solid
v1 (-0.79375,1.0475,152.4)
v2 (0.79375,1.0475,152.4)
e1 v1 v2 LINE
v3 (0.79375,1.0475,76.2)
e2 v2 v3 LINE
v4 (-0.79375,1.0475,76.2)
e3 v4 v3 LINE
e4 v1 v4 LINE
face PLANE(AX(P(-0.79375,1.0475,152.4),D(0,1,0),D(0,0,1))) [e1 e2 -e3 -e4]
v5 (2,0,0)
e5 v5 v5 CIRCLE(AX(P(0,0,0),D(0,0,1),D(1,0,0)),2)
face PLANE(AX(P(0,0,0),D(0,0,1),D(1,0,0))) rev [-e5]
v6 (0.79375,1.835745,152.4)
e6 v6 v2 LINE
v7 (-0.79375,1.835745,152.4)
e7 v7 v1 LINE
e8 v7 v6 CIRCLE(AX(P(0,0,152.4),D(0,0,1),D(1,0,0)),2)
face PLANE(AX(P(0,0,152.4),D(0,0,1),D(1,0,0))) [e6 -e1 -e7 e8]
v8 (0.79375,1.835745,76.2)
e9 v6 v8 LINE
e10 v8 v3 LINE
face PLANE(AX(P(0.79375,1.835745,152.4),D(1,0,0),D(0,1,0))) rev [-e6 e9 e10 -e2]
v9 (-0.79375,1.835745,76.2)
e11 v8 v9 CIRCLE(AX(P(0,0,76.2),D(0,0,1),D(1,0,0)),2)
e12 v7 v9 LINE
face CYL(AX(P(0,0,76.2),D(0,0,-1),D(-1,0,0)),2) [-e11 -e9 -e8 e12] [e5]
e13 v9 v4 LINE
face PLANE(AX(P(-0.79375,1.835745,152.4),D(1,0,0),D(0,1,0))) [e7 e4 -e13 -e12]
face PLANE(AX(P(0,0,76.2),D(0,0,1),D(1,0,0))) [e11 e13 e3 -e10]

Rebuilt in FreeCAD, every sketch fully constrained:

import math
import FreeCAD as App
import Part
import Sketcher

V = App.Vector
Q = App.Units.Quantity

doc = App.newDocument("Part")
params = doc.addObject("Spreadsheet::Sheet", "Params")
for row, (alias, value) in enumerate([
    ("pad1_length", "3 in"),
    ("sketch2_width", "0.0625 in"),
    ("pad2_length", "3 in"),
], start=1):
    params.set(f"A{row}", alias)
    params.set(f"B{row}", "=" + value)
    params.setAlias(f"B{row}", alias)

body = doc.addObject("PartDesign::Body", "Body")

sketch1 = doc.addObject("Sketcher::SketchObject", "Sketch")
body.addObject(sketch1)
sketch1.AttachmentSupport = (doc.XY_Plane, [""])
sketch1.MapMode = "FlatFace"
sketch1.addGeometry(Part.Circle(V(0, 0, 0), V(0, 0, 1), 2), False)
sketch1.addConstraint(Sketcher.Constraint("Coincident", 0, 3, -1, 1))
sketch1.addConstraint(Sketcher.Constraint("Diameter", 0, 4.0))
pad1 = doc.addObject("PartDesign::Pad", "Pad")
body.addObject(pad1)
pad1.Profile = sketch1
pad1.setExpression("Length", "Params.pad1_length")

sketch2 = doc.addObject("Sketcher::SketchObject", "Sketch001")
body.addObject(sketch2)
sketch2.AttachmentSupport = (doc.XY_Plane, [""])
sketch2.MapMode = "FlatFace"
sketch2.AttachmentOffset = App.Placement(V(0, 0, 3 * 25.4), App.Rotation())
sketch2.addGeometry(Part.LineSegment(V(-0.79375, 1.0475, 0), V(-0.79375, 1.835745, 0)), False)
sketch2.addGeometry(Part.ArcOfCircle(Part.Circle(V(0, 0, 0), V(0, 0, 1), 2), math.radians(113.382964), math.radians(426.617036)), False)
sketch2.addGeometry(Part.LineSegment(V(0.79375, 1.835745, 0), V(0.79375, 1.0475, 0)), False)
sketch2.addGeometry(Part.LineSegment(V(0.79375, 1.0475, 0), V(-0.79375, 1.0475, 0)), False)
sketch2.addConstraint(Sketcher.Constraint("Coincident", 0, 2, 1, 1))
sketch2.addConstraint(Sketcher.Constraint("Coincident", 1, 2, 2, 1))
sketch2.addConstraint(Sketcher.Constraint("Coincident", 2, 2, 3, 1))
sketch2.addConstraint(Sketcher.Constraint("Coincident", 3, 2, 0, 1))
sketch2.addConstraint(Sketcher.Constraint("Vertical", 0))
sketch2.addConstraint(Sketcher.Constraint("Vertical", 2))
sketch2.addConstraint(Sketcher.Constraint("Horizontal", 3))
sketch2.addConstraint(Sketcher.Constraint("Coincident", 1, 3, -1, 1))
sketch2.addConstraint(Sketcher.Constraint("Horizontal", 0, 2, 1, 2))
sketch2.addConstraint(Sketcher.Constraint("DistanceX", 3, 2, 3, 1, Q("0.0625 in")))
sketch2.addConstraint(Sketcher.Constraint("Radius", 1, 2.0))
sketch2.addConstraint(Sketcher.Constraint("DistanceY", -1, 1, 2, 2, 1.0475))
sketch2.setExpression("Constraints[9]", "Params.sketch2_width")
pad2 = doc.addObject("PartDesign::Pad", "Pad001")
body.addObject(pad2)
pad2.Profile = sketch2
pad2.setExpression("Length", "Params.pad2_length")

doc.recompute()
